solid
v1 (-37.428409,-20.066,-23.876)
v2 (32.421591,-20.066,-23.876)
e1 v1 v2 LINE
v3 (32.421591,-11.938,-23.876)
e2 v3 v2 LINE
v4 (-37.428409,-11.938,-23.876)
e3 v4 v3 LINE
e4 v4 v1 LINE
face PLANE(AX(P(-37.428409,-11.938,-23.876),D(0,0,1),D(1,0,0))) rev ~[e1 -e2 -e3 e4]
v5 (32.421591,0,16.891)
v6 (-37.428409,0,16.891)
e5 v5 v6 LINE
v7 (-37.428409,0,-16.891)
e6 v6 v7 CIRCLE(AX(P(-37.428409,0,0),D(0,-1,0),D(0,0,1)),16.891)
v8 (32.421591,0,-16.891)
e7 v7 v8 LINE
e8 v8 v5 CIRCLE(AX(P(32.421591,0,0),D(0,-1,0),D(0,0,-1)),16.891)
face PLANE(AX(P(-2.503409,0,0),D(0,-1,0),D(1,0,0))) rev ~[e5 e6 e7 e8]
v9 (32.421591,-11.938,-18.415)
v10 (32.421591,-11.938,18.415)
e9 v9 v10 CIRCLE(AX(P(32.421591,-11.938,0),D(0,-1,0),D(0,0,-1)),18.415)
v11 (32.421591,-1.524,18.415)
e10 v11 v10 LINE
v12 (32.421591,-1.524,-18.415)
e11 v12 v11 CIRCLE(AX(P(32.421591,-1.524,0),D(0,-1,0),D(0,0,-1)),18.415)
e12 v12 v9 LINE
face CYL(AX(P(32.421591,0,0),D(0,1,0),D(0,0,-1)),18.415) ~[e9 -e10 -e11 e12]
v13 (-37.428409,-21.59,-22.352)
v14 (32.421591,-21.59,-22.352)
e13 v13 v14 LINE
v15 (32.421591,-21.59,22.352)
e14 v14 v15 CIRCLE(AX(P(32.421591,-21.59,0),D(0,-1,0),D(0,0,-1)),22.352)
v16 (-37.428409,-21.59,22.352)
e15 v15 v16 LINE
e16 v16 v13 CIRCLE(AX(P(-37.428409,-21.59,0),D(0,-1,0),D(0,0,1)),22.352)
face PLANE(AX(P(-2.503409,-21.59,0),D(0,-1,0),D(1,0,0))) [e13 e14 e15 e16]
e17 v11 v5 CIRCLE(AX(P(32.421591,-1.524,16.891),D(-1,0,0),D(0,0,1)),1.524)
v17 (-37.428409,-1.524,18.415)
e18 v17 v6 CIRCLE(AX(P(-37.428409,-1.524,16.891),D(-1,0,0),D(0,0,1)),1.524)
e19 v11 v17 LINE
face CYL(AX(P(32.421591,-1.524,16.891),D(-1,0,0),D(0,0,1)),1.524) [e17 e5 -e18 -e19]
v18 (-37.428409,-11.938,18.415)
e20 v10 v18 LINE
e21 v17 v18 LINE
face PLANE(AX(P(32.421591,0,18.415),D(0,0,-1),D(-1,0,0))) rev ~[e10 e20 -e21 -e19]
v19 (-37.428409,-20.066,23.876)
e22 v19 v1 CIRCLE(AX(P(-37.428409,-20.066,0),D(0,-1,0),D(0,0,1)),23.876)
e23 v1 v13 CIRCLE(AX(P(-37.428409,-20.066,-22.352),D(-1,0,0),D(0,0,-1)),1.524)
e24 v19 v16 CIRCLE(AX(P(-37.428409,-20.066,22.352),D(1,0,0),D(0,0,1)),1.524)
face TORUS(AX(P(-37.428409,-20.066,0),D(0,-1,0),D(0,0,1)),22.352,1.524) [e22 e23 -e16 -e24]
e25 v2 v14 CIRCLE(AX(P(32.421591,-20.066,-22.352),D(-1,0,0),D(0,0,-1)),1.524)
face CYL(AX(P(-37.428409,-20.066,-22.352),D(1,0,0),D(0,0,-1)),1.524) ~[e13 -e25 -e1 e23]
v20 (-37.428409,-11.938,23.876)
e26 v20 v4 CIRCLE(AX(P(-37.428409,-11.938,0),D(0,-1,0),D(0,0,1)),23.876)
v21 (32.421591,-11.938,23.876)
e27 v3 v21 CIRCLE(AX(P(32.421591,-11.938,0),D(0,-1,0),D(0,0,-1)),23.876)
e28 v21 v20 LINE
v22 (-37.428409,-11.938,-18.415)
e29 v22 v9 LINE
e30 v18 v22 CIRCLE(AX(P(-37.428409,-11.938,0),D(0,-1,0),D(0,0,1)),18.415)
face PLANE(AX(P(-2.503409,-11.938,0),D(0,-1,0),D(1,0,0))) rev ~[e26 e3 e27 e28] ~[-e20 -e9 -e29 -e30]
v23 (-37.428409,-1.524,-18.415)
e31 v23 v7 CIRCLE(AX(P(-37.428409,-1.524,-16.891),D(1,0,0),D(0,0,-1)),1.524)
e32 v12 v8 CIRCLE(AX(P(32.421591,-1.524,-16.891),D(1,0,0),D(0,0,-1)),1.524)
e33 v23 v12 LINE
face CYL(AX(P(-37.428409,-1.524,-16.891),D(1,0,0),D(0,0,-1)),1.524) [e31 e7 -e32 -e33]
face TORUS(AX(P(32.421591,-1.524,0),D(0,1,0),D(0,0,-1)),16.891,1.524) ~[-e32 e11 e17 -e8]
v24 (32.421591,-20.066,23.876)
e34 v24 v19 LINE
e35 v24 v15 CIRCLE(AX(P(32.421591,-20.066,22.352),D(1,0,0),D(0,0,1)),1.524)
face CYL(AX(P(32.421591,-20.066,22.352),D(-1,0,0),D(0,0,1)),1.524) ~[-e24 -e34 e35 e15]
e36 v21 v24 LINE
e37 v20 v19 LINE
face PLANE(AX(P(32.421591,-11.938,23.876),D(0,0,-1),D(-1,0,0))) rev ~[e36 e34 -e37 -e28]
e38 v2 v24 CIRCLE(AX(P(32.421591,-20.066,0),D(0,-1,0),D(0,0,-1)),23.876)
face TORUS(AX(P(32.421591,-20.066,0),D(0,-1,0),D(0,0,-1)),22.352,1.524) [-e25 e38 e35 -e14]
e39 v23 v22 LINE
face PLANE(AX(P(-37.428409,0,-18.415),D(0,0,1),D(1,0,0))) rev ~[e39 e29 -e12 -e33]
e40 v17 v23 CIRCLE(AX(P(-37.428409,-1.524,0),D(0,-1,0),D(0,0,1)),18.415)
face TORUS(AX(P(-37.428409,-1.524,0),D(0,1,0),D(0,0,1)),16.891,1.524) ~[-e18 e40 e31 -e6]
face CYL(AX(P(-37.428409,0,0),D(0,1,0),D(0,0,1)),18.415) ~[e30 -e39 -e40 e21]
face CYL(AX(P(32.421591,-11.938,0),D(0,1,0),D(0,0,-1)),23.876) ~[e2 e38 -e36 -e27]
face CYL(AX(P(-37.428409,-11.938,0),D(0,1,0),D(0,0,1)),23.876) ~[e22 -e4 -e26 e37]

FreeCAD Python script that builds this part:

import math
import FreeCAD as App
import Part
import Sketcher

V = App.Vector
Q = App.Units.Quantity


def edges_at(feature, points):
    """Names of the edges that pass closest to the given points."""
    edges = feature.Shape.Edges
    near = lambda p: min(range(len(edges)), key=lambda i: edges[i].distToShape(Part.Vertex(*p))[0])
    return sorted({f"Edge{near(p) + 1}" for p in points})

doc = App.newDocument("Part")
params = doc.addObject("Spreadsheet::Sheet", "Params")
for row, (alias, value) in enumerate([
    ("sketch1_radius", "0.725 in"),
    ("sketch1_width", "2.75 in"),
    ("pad1_length", "0.47 in"),
    ("sketch2_radius", "0.94 in"),
    ("sketch2_width", "2.75 in"),
    ("pad2_length", "0.38 in"),
    ("fillet_radius", "0.06 in"),
], start=1):
    params.set(f"A{row}", alias)
    params.set(f"B{row}", "=" + value)
    params.setAlias(f"B{row}", alias)

body = doc.addObject("PartDesign::Body", "Body")

# Sketch on XZ plane
sketch1 = body.newObject("Sketcher::SketchObject", "Sketch")
sketch1.AttachmentSupport = (doc.getObject("XZ_Plane"), [""])
sketch1.MapMode = "FlatFace"
sketch1.addGeometry([
    Part.LineSegment(V(32.421591, 18.415, 0), V(-37.428409, 18.415, 0)),
    Part.ArcOfCircle(Part.Circle(V(-37.428409, 0, 0), V(0, 0, 1), 18.415), math.radians(90), math.radians(270)),
    Part.LineSegment(V(-37.428409, -18.415, 0), V(32.421591, -18.415, 0)),
    Part.ArcOfCircle(Part.Circle(V(32.421591, 0, 0), V(0, 0, 1), 18.415), math.radians(-90), math.radians(90)),
], False)
sketch1.addConstraint([
    Sketcher.Constraint("Tangent", 0, 2, 1, 1),
    Sketcher.Constraint("Tangent", 1, 2, 2, 1),
    Sketcher.Constraint("Tangent", 2, 2, 3, 1),
    Sketcher.Constraint("Tangent", 3, 2, 0, 1),
    Sketcher.Constraint("Horizontal", 0),
    Sketcher.Constraint("Horizontal", 2),
    Sketcher.Constraint("PointOnObject", 1, 3, -1),
    Sketcher.Constraint("Radius", 1, Q("0.725 in")),
    Sketcher.Constraint("DistanceX", 0, 2, 0, 1, Q("2.75 in")),
    Sketcher.Constraint("DistanceX", 1, 3, -1, 1, 37.428409),
])
sketch1.setExpression("Constraints[7]", "Params.sketch1_radius")
sketch1.setExpression("Constraints[8]", "Params.sketch1_width")
pad1 = body.newObject("PartDesign::Pad", "Pad")
pad1.Profile = sketch1
pad1.setExpression("Length", "Params.pad1_length")

# Sketch on XZ plane
sketch2 = body.newObject("Sketcher::SketchObject", "Sketch001")
sketch2.AttachmentSupport = (doc.getObject("XZ_Plane"), [""])
sketch2.MapMode = "FlatFace"
sketch2.AttachmentOffset = App.Placement(V(0, 0, 0.47 * 25.4), App.Rotation())
sketch2.addGeometry([
    Part.LineSegment(V(32.421591, 23.876, 0), V(-37.428409, 23.876, 0)),
    Part.ArcOfCircle(Part.Circle(V(-37.428409, 0, 0), V(0, 0, 1), 23.876), math.radians(90), math.radians(270)),
    Part.LineSegment(V(-37.428409, -23.876, 0), V(32.421591, -23.876, 0)),
    Part.ArcOfCircle(Part.Circle(V(32.421591, 0, 0), V(0, 0, 1), 23.876), math.radians(-90), math.radians(90)),
], False)
sketch2.addConstraint([
    Sketcher.Constraint("Tangent", 0, 2, 1, 1),
    Sketcher.Constraint("Tangent", 1, 2, 2, 1),
    Sketcher.Constraint("Tangent", 2, 2, 3, 1),
    Sketcher.Constraint("Tangent", 3, 2, 0, 1),
    Sketcher.Constraint("Horizontal", 0),
    Sketcher.Constraint("Horizontal", 2),
    Sketcher.Constraint("PointOnObject", 1, 3, -1),
    Sketcher.Constraint("Radius", 1, Q("0.94 in")),
    Sketcher.Constraint("DistanceX", 0, 2, 0, 1, Q("2.75 in")),
    Sketcher.Constraint("DistanceX", 1, 3, -1, 1, 37.428409),
])
sketch2.setExpression("Constraints[7]", "Params.sketch2_radius")
sketch2.setExpression("Constraints[8]", "Params.sketch2_width")
pad2 = body.newObject("PartDesign::Pad", "Pad001")
pad2.Profile = sketch2
pad2.setExpression("Length", "Params.pad2_length")
doc.recompute()

fillet = body.newObject("PartDesign::Fillet", "Fillet")
fillet.Base = (pad2, edges_at(pad2, [
    (-2.503, -21.59, 23.876),
    (-61.304, -21.59, 0),
    (-2.503, -21.59, -23.876),
    (56.298, -21.59, 0),
    (-2.503, 0, 18.415),
    (-55.843, 0, 0),
    (-2.503, 0, -18.415),
    (50.837, 0, 0),
]))
fillet.setExpression("Radius", "Params.fillet_radius")

doc.recompute()
